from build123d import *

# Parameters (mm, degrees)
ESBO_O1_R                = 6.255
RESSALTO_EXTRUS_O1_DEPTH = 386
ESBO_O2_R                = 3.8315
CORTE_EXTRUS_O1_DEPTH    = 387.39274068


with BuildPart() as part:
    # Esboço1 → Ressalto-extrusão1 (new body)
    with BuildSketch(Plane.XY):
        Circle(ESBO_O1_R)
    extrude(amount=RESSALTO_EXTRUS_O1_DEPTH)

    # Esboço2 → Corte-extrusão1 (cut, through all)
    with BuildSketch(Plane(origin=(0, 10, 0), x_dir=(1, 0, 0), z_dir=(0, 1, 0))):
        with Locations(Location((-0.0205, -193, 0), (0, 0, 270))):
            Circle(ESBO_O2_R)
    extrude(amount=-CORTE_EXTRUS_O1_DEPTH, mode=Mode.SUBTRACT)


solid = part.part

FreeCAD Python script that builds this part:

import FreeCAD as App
import Part
import Sketcher
from FreeCAD import Vector
Q = App.Units.Quantity

doc = App.newDocument("Part")
body = doc.addObject("PartDesign::Body", "Body")

# Sketch on XY plane
sketch1 = body.newObject("Sketcher::SketchObject", "Sketch")
sketch1.AttachmentSupport = (doc.getObject("XY_Plane"), [""])
sketch1.MapMode = "FlatFace"
sketch1.addGeometry(Part.Circle(Vector(0, 0, 0), Vector(0, 0, 1), 6), False)
sketch1.addConstraint([
    Sketcher.Constraint("Coincident", 0, 3, -1, 1),
    Sketcher.Constraint("Diameter", 0, Q("12.51 mm")),
])
pad1 = body.newObject("PartDesign::Pad", "Pad")
pad1.Profile = sketch1
pad1.Length = 386

# Sketch on XZ plane
sketch2 = body.newObject("Sketcher::SketchObject", "Sketch001")
sketch2.AttachmentSupport = (doc.getObject("XZ_Plane"), [""])
sketch2.MapMode = "FlatFace"
sketch2.AttachmentOffset = App.Placement(Vector(0, 0, -10), App.Rotation())
sketch2.addGeometry(Part.Circle(Vector(0, 193, 0), Vector(0, 0, 1), 3.8), False)
sketch2.addConstraint([
    Sketcher.Constraint("Diameter", 0, Q("7.663 mm")),
    Sketcher.Constraint("DistanceY", -1, 1, 0, 3, Q("193 mm")),
    Sketcher.Constraint("DistanceX", 0, 3, -1, 1, Q("0.0205 mm")),
])
pocket1 = body.newObject("PartDesign::Pocket", "Pocket")
pocket1.Profile = sketch2
pocket1.Type = "ThroughAll"
pocket1.Reversed = True

doc.recompute()
